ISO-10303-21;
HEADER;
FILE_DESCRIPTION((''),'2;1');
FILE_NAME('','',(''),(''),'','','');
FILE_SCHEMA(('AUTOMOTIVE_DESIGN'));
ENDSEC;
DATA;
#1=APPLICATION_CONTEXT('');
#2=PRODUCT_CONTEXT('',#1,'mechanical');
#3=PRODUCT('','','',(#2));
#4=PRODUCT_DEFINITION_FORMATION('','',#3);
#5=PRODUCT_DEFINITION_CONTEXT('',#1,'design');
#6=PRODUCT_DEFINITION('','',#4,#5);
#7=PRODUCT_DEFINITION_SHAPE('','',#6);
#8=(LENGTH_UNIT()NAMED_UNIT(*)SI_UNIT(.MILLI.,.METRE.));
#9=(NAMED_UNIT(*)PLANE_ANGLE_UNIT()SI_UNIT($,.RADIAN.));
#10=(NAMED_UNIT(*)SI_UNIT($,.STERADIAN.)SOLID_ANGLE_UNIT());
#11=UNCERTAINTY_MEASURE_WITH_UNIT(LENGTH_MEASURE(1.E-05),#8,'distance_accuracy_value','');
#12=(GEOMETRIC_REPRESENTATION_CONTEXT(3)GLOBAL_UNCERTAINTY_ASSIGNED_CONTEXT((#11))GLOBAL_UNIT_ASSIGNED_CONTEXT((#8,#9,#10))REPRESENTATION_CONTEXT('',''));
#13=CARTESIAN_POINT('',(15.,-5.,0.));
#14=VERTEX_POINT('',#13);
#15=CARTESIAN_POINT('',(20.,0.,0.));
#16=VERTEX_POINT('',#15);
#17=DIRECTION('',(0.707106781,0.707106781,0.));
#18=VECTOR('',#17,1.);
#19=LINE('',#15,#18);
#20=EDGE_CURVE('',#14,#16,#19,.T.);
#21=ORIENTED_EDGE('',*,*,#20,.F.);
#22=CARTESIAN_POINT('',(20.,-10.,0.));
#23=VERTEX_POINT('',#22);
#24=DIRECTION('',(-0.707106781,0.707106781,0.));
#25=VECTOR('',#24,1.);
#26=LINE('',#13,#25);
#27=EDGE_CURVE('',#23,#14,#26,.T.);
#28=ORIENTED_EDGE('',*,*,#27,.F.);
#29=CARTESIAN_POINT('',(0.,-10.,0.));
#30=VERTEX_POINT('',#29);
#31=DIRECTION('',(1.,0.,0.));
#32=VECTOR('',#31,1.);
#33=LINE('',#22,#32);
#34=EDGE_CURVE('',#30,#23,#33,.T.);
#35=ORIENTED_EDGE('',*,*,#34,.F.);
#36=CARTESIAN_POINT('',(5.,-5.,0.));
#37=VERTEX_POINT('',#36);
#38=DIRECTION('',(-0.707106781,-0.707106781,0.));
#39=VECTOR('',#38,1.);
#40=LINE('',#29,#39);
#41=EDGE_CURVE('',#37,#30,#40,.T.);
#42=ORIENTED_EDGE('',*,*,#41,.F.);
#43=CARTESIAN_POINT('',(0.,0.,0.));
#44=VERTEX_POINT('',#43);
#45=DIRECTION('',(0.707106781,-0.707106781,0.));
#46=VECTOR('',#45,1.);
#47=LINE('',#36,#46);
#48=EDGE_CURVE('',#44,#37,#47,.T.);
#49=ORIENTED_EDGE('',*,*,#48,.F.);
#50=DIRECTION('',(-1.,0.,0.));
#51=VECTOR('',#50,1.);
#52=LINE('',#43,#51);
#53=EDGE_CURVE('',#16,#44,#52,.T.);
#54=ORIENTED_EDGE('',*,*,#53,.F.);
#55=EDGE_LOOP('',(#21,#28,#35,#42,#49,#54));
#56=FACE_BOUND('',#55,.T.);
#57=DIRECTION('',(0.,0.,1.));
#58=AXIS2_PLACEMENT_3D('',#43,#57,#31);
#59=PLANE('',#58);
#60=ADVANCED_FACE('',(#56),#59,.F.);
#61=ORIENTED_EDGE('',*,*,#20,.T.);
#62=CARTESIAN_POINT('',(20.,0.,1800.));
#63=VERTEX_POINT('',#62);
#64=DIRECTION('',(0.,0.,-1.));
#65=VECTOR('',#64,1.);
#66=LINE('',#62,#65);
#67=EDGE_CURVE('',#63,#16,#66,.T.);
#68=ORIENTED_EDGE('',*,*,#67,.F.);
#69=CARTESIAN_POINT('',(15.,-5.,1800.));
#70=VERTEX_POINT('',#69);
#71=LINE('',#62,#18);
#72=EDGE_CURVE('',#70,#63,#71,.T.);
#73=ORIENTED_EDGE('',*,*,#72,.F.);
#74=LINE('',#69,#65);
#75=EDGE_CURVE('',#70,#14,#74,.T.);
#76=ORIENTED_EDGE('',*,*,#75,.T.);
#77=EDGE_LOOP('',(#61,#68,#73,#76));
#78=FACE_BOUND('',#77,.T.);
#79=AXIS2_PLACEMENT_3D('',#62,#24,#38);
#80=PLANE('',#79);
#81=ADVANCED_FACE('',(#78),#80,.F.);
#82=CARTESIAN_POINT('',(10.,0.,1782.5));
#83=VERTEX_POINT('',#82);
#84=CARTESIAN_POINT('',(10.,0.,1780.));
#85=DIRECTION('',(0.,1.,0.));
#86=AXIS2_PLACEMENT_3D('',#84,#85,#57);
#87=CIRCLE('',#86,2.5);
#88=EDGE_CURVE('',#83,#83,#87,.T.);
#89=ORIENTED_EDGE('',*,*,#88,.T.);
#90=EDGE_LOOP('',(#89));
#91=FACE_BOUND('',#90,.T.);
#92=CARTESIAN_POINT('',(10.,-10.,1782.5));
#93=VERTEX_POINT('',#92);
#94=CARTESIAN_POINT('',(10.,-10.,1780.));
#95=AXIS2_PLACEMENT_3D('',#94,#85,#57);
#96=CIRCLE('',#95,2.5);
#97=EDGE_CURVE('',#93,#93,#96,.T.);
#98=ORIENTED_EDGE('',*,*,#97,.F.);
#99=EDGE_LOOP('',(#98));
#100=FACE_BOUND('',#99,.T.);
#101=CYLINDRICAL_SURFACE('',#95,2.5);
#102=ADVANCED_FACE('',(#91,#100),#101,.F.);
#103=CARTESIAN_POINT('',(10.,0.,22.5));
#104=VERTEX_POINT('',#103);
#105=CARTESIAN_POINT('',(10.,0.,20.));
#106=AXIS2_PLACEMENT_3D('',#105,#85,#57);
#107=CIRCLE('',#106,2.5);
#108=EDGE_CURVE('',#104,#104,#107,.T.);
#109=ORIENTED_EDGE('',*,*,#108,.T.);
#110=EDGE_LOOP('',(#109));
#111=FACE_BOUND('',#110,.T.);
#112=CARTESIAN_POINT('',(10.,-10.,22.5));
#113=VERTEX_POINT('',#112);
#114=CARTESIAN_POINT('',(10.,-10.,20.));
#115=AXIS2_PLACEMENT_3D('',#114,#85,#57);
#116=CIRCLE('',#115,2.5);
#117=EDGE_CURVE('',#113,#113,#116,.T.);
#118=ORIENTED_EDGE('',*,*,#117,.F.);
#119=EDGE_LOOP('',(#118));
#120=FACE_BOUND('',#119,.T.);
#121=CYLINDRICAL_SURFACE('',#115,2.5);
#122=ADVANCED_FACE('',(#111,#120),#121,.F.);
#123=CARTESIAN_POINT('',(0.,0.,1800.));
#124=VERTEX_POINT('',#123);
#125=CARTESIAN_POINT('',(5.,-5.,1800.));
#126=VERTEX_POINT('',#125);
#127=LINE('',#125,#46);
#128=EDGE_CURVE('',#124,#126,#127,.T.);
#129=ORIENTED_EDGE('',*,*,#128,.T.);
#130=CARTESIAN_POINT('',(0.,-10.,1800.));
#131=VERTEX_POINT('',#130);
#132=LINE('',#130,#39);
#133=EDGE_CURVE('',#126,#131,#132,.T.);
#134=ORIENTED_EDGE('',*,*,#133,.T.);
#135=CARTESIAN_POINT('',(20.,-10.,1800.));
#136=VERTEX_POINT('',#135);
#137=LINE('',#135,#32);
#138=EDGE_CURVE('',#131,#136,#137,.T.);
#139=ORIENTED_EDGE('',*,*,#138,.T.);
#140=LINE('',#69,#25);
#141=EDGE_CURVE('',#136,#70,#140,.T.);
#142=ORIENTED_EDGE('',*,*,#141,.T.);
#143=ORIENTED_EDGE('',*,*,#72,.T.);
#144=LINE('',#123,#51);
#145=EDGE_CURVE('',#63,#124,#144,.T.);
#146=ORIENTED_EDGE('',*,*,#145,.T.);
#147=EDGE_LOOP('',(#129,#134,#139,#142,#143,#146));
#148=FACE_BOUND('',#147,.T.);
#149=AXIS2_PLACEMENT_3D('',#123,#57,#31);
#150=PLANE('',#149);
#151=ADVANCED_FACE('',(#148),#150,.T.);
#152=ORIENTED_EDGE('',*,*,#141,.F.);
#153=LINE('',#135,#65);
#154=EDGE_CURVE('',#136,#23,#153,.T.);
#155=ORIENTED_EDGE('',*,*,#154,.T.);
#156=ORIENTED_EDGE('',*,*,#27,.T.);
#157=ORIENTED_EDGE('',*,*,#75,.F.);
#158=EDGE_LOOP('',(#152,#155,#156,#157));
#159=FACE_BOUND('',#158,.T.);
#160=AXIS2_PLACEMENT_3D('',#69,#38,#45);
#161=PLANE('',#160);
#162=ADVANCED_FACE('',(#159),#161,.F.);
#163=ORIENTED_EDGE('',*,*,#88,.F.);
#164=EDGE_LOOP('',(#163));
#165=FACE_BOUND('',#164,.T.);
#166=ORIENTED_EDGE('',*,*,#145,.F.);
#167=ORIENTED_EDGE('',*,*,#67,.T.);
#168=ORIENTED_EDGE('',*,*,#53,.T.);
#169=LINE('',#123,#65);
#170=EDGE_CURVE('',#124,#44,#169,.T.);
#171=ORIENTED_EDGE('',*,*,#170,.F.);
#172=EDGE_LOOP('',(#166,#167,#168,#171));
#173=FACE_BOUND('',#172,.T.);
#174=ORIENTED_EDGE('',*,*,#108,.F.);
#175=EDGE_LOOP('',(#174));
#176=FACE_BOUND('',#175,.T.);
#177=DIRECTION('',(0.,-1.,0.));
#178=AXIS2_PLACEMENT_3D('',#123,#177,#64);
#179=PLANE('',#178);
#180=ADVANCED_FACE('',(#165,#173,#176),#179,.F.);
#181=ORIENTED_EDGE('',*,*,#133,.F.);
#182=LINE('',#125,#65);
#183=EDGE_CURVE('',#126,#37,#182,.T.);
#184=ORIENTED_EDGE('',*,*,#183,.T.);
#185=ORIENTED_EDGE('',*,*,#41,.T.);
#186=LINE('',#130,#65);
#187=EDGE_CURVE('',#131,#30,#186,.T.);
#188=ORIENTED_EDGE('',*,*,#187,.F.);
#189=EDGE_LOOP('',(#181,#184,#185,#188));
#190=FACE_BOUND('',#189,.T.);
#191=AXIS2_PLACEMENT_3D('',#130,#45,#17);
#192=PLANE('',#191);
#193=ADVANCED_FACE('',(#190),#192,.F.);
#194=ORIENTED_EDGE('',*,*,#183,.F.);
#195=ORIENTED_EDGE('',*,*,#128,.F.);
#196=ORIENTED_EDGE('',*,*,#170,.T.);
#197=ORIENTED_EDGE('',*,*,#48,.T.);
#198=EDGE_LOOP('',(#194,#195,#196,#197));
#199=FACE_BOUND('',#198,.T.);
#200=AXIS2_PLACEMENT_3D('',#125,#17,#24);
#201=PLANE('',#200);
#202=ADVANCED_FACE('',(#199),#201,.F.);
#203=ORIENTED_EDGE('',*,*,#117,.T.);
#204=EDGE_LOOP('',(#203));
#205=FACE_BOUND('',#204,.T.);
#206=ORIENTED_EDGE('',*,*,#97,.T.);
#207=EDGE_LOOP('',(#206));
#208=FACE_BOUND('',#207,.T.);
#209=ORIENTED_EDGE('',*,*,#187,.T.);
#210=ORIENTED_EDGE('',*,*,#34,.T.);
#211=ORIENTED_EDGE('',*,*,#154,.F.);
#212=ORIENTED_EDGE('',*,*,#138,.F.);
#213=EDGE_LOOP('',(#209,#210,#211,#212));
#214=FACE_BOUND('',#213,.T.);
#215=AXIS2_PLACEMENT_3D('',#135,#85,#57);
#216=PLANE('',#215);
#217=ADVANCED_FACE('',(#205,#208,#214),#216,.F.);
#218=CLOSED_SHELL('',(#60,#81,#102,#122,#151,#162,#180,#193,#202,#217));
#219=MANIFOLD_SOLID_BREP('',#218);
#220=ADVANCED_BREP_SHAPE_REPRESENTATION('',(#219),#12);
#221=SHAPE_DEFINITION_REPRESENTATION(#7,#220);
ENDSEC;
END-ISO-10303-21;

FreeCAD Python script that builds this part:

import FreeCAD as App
import Part
import Sketcher


def add_polygon(sketch, points):
    """Adds a closed chain of lines whose ends are joined by coincident constraints."""
    first, n = sketch.GeometryCount, len(points)
    for a, b in zip(points, points[1:] + points[:1]):
        sketch.addGeometry(Part.LineSegment(App.Vector(*a, 0), App.Vector(*b, 0)), False)
    for i in range(n):
        sketch.addConstraint(Sketcher.Constraint("Coincident", first + i, 2, first + (i + 1) % n, 1))

doc = App.newDocument("Part")
body = doc.addObject("PartDesign::Body", "Body")

sketch1 = body.newObject("Sketcher::SketchObject", "Sketch")
sketch1.AttachmentSupport = (doc.getObject("XY_Plane"), [""])
sketch1.MapMode = "FlatFace"
add_polygon(sketch1, [(20, 0), (0, 0), (5, -5), (0, -10), (20, -10), (15, -5)])
sketch1.addConstraint([
    Sketcher.Constraint("Horizontal", 0),
    Sketcher.Constraint("Horizontal", 3),
    Sketcher.Constraint("Coincident", 0, 2, -1, 1),
    Sketcher.Constraint("PointOnObject", 2, 2, -2),
    Sketcher.Constraint("Perpendicular", 1, 2),
    Sketcher.Constraint("Perpendicular", 2, 4),
    Sketcher.Constraint("Perpendicular", 4, 5),
    Sketcher.Constraint("Horizontal", 1, 2, 4, 2),
    Sketcher.Constraint("Vertical", 3, 2, 5, 2),
    Sketcher.Constraint("DistanceX", 0, 2, 0, 1, 20.0),
    Sketcher.Constraint("DistanceX", -1, 1, 1, 2, 5.0),
])
pad1 = body.newObject("PartDesign::Pad", "Pad")
pad1.Profile = sketch1
pad1.Length = 1800

sketch2 = body.newObject("Sketcher::SketchObject", "Sketch001")
sketch2.AttachmentSupport = (doc.getObject("XZ_Plane"), [""])
sketch2.MapMode = "FlatFace"
sketch2.addGeometry([
    Part.Circle(App.Vector(10, 20, 0), App.Vector(0, 0, 1), 2.5),
    Part.Circle(App.Vector(10, 1780, 0), App.Vector(0, 0, 1), 2.5),
], False)
sketch2.addConstraint([
    Sketcher.Constraint("Equal", 0, 1),
    Sketcher.Constraint("Vertical", 0, 3, 1, 3),
    Sketcher.Constraint("Diameter", 0, 5.0),
    Sketcher.Constraint("DistanceX", -1, 1, 0, 3, 10.0),
    Sketcher.Constraint("DistanceY", -1, 1, 0, 3, 20.0),
    Sketcher.Constraint("DistanceY", -1, 1, 1, 3, 1780.0),
])
pocket1 = body.newObject("PartDesign::Pocket", "Pocket")
pocket1.Profile = sketch2
pocket1.Length = 10
pocket1.Reversed = True

doc.recompute()
